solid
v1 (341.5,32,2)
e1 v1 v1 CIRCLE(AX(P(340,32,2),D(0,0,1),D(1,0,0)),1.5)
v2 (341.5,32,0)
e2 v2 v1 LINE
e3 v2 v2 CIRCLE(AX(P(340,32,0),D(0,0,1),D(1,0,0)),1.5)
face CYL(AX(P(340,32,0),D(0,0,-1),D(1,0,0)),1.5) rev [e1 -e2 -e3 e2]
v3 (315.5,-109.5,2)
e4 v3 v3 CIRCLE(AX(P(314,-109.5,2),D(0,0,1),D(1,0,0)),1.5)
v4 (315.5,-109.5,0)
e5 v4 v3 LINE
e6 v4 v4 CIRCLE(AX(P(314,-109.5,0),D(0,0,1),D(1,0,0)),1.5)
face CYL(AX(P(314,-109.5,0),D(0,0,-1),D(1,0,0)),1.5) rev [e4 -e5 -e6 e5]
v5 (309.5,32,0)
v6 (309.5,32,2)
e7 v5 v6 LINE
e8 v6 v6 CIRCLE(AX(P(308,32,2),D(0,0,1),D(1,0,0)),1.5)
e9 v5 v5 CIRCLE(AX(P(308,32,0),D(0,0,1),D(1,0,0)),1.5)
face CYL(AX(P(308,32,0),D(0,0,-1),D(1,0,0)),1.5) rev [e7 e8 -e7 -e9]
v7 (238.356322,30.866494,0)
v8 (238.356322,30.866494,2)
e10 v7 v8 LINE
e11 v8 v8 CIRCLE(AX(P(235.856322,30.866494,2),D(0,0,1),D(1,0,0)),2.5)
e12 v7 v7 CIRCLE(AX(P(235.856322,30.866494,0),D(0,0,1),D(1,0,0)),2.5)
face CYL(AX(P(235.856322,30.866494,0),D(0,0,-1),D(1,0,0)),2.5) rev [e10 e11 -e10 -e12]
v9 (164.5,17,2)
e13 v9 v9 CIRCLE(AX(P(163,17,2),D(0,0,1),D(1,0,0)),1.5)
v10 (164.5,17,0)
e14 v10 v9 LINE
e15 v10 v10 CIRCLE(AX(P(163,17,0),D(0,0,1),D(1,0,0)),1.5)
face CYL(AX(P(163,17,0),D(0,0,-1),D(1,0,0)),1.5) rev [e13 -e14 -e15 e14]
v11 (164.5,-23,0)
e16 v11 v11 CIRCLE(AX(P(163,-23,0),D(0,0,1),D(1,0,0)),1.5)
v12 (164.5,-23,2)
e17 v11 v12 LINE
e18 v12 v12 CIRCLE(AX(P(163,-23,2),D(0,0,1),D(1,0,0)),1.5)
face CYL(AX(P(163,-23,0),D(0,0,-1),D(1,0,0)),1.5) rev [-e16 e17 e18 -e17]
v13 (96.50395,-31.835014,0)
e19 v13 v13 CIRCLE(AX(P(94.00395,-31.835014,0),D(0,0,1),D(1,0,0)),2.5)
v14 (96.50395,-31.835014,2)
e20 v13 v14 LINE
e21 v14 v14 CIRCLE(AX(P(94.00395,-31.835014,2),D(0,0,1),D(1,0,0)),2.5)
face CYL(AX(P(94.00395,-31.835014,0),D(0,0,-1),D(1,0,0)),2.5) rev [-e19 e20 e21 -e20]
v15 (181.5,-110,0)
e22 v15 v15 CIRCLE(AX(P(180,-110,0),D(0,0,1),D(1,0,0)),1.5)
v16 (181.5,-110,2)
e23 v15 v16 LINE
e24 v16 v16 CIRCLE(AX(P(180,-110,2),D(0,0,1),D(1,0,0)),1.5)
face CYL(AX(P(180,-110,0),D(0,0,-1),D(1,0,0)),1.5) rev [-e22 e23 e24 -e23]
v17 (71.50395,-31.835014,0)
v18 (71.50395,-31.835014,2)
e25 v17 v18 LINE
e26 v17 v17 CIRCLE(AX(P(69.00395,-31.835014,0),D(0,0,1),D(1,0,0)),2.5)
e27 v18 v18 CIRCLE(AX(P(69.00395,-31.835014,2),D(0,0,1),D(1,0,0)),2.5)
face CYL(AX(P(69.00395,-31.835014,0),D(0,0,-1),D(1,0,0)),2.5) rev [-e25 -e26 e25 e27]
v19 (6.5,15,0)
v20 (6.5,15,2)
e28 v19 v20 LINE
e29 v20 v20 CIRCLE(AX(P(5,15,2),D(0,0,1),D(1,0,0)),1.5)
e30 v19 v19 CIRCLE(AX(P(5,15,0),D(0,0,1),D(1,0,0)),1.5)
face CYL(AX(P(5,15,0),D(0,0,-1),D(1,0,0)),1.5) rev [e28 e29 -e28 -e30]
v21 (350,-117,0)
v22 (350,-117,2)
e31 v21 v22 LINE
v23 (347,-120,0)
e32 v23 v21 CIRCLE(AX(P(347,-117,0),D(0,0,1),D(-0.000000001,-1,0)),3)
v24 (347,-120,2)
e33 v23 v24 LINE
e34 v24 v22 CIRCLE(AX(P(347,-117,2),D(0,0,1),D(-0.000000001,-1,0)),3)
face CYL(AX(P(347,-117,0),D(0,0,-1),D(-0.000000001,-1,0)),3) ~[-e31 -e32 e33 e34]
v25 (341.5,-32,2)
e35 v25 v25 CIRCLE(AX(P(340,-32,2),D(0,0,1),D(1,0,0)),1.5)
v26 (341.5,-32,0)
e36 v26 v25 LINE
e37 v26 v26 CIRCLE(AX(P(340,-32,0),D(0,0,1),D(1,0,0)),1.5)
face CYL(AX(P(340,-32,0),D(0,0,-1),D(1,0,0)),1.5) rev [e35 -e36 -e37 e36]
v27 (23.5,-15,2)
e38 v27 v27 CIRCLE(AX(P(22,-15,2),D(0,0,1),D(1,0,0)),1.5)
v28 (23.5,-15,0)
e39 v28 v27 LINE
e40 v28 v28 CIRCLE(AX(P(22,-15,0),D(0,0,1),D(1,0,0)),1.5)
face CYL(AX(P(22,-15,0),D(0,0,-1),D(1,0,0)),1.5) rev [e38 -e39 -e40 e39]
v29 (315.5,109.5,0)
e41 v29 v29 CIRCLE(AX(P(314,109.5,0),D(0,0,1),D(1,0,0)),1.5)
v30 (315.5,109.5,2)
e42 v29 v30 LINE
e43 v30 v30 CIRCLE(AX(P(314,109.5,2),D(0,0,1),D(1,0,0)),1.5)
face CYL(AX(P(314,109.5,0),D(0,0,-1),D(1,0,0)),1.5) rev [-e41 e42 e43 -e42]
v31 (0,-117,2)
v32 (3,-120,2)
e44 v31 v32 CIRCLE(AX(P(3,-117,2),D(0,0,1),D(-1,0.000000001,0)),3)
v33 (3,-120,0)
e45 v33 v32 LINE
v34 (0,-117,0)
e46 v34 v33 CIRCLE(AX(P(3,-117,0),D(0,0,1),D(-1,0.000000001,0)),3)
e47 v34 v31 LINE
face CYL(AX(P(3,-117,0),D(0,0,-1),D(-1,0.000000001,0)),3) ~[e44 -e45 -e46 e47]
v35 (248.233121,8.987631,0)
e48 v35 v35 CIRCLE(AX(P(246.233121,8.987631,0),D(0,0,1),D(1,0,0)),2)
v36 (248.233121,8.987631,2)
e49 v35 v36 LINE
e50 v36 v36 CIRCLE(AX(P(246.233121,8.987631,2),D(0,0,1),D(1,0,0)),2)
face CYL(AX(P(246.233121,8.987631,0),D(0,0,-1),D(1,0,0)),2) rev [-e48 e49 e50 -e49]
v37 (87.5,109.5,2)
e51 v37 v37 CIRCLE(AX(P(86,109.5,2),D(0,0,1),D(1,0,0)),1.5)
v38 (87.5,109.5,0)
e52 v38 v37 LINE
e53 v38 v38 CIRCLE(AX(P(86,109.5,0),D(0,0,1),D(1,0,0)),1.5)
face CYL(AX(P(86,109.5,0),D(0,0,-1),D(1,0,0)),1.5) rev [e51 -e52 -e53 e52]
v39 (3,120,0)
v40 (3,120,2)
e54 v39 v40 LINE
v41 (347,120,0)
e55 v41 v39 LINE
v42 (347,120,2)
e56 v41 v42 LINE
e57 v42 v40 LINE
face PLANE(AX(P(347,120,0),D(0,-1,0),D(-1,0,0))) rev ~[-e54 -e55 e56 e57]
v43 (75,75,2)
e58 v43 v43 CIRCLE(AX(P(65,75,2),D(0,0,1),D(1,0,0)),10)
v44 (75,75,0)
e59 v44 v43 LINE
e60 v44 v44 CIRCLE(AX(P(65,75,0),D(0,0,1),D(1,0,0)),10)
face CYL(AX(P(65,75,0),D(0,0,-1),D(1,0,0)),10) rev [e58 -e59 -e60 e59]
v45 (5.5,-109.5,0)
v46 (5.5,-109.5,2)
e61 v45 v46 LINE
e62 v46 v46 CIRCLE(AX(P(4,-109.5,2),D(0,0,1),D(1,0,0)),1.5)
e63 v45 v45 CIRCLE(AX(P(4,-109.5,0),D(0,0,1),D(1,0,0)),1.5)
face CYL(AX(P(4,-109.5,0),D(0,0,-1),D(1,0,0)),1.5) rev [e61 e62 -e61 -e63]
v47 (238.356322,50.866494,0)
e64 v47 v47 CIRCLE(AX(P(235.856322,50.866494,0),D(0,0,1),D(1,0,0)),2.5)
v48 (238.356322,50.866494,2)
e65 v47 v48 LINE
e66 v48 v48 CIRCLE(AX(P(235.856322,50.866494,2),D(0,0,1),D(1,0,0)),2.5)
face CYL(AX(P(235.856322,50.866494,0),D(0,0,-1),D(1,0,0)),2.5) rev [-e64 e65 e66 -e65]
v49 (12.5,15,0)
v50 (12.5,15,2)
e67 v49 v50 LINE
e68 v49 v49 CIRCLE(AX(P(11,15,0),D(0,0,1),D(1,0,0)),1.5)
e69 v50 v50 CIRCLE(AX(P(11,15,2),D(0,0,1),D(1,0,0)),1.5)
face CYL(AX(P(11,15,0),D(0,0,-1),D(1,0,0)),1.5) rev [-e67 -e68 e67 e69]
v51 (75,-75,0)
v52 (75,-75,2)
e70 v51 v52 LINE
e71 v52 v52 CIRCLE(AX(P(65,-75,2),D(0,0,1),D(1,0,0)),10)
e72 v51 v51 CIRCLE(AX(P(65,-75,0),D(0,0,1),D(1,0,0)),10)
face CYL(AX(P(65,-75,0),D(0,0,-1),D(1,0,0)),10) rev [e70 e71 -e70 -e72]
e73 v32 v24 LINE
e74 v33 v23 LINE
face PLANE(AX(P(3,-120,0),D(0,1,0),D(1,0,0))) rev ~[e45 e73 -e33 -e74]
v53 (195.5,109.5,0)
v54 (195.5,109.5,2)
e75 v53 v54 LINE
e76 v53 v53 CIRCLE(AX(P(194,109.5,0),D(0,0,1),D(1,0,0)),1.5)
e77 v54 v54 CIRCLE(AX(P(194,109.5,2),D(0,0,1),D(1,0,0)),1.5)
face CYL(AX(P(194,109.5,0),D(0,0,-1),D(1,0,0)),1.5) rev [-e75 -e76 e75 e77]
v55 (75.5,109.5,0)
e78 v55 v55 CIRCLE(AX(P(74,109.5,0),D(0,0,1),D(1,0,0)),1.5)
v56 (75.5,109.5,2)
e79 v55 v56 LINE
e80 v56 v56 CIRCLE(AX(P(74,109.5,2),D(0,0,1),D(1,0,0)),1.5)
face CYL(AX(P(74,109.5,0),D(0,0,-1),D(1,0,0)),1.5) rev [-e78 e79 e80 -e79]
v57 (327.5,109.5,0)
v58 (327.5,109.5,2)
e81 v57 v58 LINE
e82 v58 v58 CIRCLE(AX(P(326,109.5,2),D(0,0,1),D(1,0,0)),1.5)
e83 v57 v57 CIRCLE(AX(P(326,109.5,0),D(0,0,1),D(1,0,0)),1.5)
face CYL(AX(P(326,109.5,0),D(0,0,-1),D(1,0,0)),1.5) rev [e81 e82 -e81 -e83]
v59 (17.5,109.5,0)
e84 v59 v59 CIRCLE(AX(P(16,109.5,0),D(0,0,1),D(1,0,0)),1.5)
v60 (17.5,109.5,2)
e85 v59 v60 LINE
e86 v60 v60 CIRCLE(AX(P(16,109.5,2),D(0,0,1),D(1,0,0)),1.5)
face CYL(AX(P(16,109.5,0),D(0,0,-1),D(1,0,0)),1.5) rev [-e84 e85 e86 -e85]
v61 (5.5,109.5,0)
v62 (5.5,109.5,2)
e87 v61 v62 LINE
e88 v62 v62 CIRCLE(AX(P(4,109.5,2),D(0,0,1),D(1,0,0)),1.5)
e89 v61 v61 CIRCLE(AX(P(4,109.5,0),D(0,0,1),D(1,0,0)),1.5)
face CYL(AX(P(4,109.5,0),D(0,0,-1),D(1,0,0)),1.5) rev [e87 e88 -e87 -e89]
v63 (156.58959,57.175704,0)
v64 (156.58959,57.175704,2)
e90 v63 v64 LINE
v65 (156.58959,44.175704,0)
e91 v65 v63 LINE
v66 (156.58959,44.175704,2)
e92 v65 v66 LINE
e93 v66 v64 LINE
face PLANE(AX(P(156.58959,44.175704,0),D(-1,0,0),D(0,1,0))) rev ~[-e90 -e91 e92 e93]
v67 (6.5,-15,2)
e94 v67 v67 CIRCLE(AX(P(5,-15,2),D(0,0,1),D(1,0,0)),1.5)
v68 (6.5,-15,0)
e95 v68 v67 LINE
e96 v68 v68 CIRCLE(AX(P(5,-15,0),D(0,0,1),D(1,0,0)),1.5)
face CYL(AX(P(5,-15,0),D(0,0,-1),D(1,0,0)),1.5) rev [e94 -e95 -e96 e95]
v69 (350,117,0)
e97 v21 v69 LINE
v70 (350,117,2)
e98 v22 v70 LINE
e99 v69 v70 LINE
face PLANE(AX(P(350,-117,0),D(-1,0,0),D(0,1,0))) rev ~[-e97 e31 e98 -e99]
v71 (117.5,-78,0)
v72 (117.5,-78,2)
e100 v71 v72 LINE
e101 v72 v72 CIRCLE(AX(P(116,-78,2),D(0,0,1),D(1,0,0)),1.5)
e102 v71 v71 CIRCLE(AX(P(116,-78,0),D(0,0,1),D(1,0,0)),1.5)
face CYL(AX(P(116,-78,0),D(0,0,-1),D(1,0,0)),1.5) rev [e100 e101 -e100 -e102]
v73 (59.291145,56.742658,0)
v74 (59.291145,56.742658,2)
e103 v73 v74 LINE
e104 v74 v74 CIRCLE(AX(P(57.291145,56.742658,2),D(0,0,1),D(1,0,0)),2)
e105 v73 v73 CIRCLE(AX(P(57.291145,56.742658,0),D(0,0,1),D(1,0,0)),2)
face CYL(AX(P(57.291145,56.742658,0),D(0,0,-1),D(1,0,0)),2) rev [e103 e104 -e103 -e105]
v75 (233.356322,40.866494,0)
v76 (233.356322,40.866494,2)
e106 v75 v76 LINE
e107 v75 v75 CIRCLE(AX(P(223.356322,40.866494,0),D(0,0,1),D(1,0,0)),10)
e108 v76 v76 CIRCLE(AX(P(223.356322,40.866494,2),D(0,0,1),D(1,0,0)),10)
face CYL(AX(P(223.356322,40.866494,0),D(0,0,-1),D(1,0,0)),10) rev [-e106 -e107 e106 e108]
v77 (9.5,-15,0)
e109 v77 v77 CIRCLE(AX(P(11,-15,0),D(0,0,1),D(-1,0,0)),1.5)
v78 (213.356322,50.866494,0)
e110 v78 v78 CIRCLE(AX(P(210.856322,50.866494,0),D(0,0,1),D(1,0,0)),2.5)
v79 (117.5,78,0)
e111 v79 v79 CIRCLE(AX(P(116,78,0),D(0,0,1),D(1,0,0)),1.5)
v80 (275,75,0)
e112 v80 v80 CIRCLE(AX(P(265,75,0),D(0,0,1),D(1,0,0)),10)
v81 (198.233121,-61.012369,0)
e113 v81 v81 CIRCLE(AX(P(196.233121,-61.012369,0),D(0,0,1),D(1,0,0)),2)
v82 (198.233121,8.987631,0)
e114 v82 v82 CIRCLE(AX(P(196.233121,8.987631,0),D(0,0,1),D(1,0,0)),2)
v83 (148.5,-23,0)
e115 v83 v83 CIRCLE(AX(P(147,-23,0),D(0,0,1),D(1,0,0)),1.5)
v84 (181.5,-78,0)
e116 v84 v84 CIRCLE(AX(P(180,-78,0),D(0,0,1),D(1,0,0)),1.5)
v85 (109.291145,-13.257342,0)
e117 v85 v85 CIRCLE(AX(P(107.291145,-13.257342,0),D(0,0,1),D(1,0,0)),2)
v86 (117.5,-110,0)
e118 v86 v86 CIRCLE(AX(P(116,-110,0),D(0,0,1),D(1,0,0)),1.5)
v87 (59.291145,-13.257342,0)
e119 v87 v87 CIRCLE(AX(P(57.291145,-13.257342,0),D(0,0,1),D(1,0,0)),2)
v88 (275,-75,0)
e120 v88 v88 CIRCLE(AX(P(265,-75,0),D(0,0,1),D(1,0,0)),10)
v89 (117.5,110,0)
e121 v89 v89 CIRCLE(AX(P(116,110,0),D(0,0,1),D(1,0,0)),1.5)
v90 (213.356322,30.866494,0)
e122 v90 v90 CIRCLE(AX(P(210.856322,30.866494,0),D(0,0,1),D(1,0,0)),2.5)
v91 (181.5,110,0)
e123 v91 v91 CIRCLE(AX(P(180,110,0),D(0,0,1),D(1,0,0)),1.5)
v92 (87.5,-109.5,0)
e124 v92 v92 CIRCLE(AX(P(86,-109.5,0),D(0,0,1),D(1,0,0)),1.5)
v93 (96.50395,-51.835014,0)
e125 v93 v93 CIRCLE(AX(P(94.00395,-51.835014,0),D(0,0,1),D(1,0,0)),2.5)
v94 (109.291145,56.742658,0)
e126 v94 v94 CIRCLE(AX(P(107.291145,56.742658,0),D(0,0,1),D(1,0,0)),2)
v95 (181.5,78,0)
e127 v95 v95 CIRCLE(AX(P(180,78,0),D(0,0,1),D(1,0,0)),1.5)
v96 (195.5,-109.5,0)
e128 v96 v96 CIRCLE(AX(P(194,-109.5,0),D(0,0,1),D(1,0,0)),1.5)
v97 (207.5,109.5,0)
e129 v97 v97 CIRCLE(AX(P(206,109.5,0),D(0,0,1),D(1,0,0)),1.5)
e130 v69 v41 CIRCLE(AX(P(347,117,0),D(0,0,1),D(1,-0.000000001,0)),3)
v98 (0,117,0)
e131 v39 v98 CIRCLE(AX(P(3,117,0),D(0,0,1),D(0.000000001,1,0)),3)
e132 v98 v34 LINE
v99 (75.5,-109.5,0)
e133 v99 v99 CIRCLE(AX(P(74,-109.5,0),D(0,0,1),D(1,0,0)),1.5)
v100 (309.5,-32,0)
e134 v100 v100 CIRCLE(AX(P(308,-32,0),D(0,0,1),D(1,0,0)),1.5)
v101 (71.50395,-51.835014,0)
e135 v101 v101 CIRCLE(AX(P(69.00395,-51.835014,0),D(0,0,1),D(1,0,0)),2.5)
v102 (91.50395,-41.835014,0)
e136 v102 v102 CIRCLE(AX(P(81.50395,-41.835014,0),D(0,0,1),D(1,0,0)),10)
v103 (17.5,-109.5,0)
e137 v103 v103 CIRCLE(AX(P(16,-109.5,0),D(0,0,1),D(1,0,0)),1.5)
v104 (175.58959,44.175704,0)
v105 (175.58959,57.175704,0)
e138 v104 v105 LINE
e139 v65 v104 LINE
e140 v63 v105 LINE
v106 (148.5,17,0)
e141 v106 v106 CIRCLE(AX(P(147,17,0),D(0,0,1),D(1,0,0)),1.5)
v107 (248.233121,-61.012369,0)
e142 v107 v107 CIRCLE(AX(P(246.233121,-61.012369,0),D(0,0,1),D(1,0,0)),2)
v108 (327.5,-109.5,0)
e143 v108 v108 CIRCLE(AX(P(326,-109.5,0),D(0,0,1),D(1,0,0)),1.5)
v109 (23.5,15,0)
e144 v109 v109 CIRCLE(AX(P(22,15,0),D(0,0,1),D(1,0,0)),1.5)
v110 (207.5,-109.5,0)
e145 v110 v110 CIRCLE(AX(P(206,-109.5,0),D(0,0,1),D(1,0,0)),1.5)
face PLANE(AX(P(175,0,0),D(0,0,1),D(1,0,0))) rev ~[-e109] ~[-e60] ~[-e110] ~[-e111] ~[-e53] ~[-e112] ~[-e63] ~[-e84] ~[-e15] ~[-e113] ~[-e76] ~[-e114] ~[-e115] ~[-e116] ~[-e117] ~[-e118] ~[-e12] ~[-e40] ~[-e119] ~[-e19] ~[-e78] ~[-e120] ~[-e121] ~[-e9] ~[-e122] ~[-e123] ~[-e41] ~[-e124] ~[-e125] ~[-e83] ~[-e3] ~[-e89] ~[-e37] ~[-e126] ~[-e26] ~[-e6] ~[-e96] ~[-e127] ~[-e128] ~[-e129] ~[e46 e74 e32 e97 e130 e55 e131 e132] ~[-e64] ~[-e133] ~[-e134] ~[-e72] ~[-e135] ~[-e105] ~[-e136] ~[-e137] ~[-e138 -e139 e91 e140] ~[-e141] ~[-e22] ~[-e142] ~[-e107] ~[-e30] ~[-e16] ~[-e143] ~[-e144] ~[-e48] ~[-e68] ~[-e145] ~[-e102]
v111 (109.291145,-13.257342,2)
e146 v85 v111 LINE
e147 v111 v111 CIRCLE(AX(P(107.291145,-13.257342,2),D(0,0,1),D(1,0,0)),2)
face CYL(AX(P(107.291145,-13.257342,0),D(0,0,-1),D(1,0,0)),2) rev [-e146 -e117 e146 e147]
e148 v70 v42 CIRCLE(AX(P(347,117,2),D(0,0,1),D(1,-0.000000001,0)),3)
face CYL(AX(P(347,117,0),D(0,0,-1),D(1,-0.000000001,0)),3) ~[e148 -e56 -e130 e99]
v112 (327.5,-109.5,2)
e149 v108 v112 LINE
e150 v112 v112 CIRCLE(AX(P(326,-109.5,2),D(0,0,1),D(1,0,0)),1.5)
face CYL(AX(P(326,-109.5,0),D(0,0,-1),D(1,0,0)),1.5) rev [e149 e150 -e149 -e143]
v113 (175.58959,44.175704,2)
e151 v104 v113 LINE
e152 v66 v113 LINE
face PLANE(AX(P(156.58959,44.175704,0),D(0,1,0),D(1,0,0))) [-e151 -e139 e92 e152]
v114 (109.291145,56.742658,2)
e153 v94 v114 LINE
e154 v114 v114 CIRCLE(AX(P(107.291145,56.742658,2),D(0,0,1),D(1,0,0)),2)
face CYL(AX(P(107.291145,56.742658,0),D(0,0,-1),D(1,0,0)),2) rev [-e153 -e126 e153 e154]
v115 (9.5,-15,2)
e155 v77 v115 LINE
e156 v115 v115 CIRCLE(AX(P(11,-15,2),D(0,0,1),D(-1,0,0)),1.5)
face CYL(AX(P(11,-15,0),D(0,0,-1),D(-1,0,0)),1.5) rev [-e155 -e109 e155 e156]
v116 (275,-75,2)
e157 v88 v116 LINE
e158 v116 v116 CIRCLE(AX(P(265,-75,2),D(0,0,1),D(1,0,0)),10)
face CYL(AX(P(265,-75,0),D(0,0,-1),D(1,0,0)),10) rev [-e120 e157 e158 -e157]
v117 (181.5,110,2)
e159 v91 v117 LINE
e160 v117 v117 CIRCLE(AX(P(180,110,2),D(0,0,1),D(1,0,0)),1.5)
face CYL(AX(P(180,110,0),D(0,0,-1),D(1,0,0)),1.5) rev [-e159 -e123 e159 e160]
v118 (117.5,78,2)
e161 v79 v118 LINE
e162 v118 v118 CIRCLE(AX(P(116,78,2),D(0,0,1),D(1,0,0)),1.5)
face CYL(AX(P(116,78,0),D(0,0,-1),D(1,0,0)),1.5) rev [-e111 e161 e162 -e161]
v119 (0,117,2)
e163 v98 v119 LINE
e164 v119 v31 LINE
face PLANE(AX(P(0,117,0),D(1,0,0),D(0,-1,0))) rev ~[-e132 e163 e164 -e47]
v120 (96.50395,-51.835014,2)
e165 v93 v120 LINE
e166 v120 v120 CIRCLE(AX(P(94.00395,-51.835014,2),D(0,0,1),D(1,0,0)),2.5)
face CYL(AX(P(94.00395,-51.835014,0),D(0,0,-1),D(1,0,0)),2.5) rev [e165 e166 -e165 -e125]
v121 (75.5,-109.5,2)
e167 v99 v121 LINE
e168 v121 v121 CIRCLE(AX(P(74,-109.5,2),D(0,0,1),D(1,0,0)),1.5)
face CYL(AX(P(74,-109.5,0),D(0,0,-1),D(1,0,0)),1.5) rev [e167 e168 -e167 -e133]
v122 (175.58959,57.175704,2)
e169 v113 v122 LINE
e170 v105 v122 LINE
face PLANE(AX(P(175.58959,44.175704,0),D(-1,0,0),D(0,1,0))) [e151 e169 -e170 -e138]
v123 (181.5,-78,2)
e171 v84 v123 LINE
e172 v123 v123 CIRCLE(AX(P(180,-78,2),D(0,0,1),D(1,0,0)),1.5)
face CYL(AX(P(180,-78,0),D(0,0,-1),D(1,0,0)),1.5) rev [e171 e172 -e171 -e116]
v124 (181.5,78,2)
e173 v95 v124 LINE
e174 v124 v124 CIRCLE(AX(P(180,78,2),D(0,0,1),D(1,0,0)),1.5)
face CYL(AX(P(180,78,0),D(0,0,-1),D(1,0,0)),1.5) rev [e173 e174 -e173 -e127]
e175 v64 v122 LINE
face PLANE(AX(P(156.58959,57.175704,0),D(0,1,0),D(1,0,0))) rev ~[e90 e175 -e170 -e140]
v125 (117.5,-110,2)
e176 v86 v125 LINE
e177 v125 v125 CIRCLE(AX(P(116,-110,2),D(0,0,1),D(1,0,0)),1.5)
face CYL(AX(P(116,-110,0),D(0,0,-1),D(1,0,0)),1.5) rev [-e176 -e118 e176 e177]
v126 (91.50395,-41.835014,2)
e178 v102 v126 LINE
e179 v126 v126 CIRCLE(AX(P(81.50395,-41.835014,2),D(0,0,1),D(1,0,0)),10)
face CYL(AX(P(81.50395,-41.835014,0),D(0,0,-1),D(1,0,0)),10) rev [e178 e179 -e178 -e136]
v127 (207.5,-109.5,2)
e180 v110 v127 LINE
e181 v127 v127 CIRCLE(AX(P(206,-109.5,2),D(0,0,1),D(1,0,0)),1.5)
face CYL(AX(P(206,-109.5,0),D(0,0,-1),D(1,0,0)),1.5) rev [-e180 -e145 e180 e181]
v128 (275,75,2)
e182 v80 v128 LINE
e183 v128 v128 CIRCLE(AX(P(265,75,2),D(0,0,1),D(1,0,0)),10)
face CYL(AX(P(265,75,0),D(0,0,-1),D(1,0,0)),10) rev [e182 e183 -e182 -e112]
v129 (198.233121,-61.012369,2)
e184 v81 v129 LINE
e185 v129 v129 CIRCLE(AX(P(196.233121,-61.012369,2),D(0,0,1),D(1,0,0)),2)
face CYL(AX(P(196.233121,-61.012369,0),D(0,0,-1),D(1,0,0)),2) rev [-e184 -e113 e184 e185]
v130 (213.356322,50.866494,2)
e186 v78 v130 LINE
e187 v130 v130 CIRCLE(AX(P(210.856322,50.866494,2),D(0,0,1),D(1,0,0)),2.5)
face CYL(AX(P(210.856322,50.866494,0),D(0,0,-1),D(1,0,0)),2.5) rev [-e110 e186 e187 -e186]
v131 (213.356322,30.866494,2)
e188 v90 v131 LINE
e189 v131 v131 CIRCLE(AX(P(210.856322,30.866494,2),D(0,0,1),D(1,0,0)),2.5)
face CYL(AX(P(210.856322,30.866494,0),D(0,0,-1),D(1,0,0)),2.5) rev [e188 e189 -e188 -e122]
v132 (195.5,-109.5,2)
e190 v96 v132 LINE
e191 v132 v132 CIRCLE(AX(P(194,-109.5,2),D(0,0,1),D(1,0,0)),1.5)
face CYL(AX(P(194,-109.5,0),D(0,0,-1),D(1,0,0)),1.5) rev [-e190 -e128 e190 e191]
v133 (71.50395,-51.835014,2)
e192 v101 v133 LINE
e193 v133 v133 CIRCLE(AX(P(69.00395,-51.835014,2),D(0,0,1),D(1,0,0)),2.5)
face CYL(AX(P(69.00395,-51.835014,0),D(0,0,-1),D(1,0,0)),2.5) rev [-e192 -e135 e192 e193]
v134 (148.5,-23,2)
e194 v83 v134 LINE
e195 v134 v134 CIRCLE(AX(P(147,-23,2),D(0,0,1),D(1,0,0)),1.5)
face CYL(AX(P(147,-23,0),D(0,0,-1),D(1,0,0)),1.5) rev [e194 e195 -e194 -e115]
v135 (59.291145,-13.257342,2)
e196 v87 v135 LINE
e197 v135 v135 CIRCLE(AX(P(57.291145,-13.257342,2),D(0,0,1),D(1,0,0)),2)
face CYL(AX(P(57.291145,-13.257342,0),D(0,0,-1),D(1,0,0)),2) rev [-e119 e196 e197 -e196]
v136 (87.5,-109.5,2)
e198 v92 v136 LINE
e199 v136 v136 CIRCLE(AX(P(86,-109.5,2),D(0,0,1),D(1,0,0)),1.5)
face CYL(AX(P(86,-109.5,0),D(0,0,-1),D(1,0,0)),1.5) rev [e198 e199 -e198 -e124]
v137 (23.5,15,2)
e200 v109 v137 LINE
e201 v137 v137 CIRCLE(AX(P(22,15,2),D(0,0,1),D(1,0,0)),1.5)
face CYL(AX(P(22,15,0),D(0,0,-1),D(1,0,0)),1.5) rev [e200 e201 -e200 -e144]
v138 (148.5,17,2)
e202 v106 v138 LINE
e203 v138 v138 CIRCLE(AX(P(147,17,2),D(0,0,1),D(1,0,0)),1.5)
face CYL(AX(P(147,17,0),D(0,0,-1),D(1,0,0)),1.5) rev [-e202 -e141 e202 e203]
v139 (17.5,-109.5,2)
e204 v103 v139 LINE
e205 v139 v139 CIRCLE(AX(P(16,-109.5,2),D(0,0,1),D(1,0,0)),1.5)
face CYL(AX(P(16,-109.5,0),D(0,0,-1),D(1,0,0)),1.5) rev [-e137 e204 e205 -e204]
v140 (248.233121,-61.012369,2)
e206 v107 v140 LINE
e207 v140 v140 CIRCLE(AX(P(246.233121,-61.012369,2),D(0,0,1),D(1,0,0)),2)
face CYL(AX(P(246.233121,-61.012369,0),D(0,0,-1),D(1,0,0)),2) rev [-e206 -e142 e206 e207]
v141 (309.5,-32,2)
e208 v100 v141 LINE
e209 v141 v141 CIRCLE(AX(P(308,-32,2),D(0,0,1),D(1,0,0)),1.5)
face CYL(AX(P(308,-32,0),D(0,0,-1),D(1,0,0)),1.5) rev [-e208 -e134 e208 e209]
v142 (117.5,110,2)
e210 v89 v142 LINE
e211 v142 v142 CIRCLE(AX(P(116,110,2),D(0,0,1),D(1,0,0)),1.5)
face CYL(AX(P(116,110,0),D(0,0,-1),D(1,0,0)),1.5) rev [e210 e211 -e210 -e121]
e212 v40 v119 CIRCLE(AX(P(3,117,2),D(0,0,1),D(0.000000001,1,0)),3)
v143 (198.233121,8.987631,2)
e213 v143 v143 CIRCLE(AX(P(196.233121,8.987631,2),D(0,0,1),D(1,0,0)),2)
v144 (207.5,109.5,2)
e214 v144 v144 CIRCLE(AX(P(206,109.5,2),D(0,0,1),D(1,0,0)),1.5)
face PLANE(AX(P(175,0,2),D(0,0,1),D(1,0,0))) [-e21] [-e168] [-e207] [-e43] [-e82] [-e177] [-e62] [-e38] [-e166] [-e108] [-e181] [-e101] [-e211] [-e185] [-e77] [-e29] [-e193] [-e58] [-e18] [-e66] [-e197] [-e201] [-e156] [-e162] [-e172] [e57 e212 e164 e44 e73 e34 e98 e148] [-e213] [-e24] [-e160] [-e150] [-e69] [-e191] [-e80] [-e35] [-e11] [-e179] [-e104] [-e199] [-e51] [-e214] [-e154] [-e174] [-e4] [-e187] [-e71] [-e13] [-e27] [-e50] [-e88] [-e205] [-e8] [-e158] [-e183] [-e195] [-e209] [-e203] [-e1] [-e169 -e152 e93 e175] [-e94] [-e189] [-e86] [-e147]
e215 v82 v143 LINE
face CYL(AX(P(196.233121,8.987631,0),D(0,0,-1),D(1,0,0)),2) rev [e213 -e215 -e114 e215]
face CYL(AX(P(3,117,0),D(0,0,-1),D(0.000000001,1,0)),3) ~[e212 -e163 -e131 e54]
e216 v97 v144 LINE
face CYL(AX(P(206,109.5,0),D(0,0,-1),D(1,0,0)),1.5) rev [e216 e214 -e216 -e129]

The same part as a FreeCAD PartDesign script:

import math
import FreeCAD as App
import Part
import Sketcher
Q = App.Units.Quantity


def add_polygon(sketch, points):
    """Adds a closed chain of lines whose ends are joined by coincident constraints."""
    first, n = sketch.GeometryCount, len(points)
    for a, b in zip(points, points[1:] + points[:1]):
        sketch.addGeometry(Part.LineSegment(App.Vector(*a, 0), App.Vector(*b, 0)), False)
    for i in range(n):
        sketch.addConstraint(Sketcher.Constraint("Coincident", first + i, 2, first + (i + 1) % n, 1))

doc = App.newDocument("Part")
params = doc.addObject("Spreadsheet::Sheet", "Params")
for row, (alias, value) in enumerate([
    ("sketch1_diameter", "3 mm"),
    ("sketch1_diameter2", "20 mm"),
    ("sketch1_diameter3", "5 mm"),
    ("sketch1_diameter4", "4 mm"),
    ("sketch1_radius", "3 mm"),
    ("pad1_length", "2 mm"),
], start=1):
    params.set(f"A{row}", alias)
    params.set(f"B{row}", "=" + value)
    params.setAlias(f"B{row}", alias)

body = doc.addObject("PartDesign::Body", "Body")

sketch1 = body.newObject("Sketcher::SketchObject", "Sketch")
sketch1.AttachmentSupport = (doc.getObject("XY_Plane"), [""])
sketch1.MapMode = "FlatFace"
sketch1.addGeometry(Part.LineSegment(App.Vector(347, 120, 0), App.Vector(3, 120, 0)), False)
sketch1.addGeometry(Part.ArcOfCircle(Part.Circle(App.Vector(3, 117, 0), App.Vector(0, 0, 1), 3), math.radians(90), math.radians(180)), False)
sketch1.addGeometry(Part.LineSegment(App.Vector(0, 117, 0), App.Vector(0, -117, 0)), False)
sketch1.addGeometry(Part.ArcOfCircle(Part.Circle(App.Vector(3, -117, 0), App.Vector(0, 0, 1), 3), math.radians(180), math.radians(270)), False)
sketch1.addGeometry(Part.LineSegment(App.Vector(3, -120, 0), App.Vector(347, -120, 0)), False)
sketch1.addGeometry(Part.ArcOfCircle(Part.Circle(App.Vector(347, -117, 0), App.Vector(0, 0, 1), 3), math.radians(-90), math.radians(0)), False)
sketch1.addGeometry(Part.LineSegment(App.Vector(350, -117, 0), App.Vector(350, 117, 0)), False)
sketch1.addGeometry(Part.ArcOfCircle(Part.Circle(App.Vector(347, 117, 0), App.Vector(0, 0, 1), 3), math.radians(0), math.radians(90)), False)
sketch1.addGeometry(Part.Circle(App.Vector(4, -109.5, 0), App.Vector(0, 0, 1), 1.5), False)
sketch1.addGeometry(Part.Circle(App.Vector(16, -109.5, 0), App.Vector(0, 0, 1), 1.5), False)
sketch1.addGeometry(Part.Circle(App.Vector(74, -109.5, 0), App.Vector(0, 0, 1), 1.5), False)
sketch1.addGeometry(Part.Circle(App.Vector(86, -109.5, 0), App.Vector(0, 0, 1), 1.5), False)
sketch1.addGeometry(Part.Circle(App.Vector(65, -75, 0), App.Vector(0, 0, 1), 10), False)
sketch1.addGeometry(Part.Circle(App.Vector(116, -110, 0), App.Vector(0, 0, 1), 1.5), False)
sketch1.addGeometry(Part.Circle(App.Vector(116, -78, 0), App.Vector(0, 0, 1), 1.5), False)
sketch1.addGeometry(Part.Circle(App.Vector(69, -51.8, 0), App.Vector(0, 0, 1), 2.5), False)
sketch1.addGeometry(Part.Circle(App.Vector(81.5, -41.8, 0), App.Vector(0, 0, 1), 10), False)
sketch1.addGeometry(Part.Circle(App.Vector(69, -31.8, 0), App.Vector(0, 0, 1), 2.5), False)
sketch1.addGeometry(Part.Circle(App.Vector(5, -15, 0), App.Vector(0, 0, 1), 1.5), False)
sketch1.addGeometry(Part.Circle(App.Vector(11, -15, 0), App.Vector(0, 0, 1), 1.5), False)
sketch1.addGeometry(Part.Circle(App.Vector(22, -15, 0), App.Vector(0, 0, 1), 1.5), False)
sketch1.addGeometry(Part.Circle(App.Vector(57.3, -13.3, 0), App.Vector(0, 0, 1), 2), False)
sketch1.addGeometry(Part.Circle(App.Vector(94, -51.8, 0), App.Vector(0, 0, 1), 2.5), False)
sketch1.addGeometry(Part.Circle(App.Vector(94, -31.8, 0), App.Vector(0, 0, 1), 2.5), False)
sketch1.addGeometry(Part.Circle(App.Vector(107.3, -13.3, 0), App.Vector(0, 0, 1), 2), False)
sketch1.addGeometry(Part.Circle(App.Vector(147, -23, 0), App.Vector(0, 0, 1), 1.5), False)
sketch1.addGeometry(Part.Circle(App.Vector(163, -23, 0), App.Vector(0, 0, 1), 1.5), False)
sketch1.addGeometry(Part.Circle(App.Vector(180, -110, 0), App.Vector(0, 0, 1), 1.5), False)
sketch1.addGeometry(Part.Circle(App.Vector(194, -109.5, 0), App.Vector(0, 0, 1), 1.5), False)
sketch1.addGeometry(Part.Circle(App.Vector(206, -109.5, 0), App.Vector(0, 0, 1), 1.5), False)
sketch1.addGeometry(Part.Circle(App.Vector(180, -78, 0), App.Vector(0, 0, 1), 1.5), False)
sketch1.addGeometry(Part.Circle(App.Vector(196.2, -61, 0), App.Vector(0, 0, 1), 2), False)
sketch1.addGeometry(Part.Circle(App.Vector(246.2, -61, 0), App.Vector(0, 0, 1), 2), False)
sketch1.addGeometry(Part.Circle(App.Vector(314, -109.5, 0), App.Vector(0, 0, 1), 1.5), False)
sketch1.addGeometry(Part.Circle(App.Vector(326, -109.5, 0), App.Vector(0, 0, 1), 1.5), False)
sketch1.addGeometry(Part.Circle(App.Vector(265, -75, 0), App.Vector(0, 0, 1), 10), False)
sketch1.addGeometry(Part.Circle(App.Vector(308, -32, 0), App.Vector(0, 0, 1), 1.5), False)
sketch1.addGeometry(Part.Circle(App.Vector(340, -32, 0), App.Vector(0, 0, 1), 1.5), False)
sketch1.addGeometry(Part.Circle(App.Vector(5, 15, 0), App.Vector(0, 0, 1), 1.5), False)
sketch1.addGeometry(Part.Circle(App.Vector(11, 15, 0), App.Vector(0, 0, 1), 1.5), False)
sketch1.addGeometry(Part.Circle(App.Vector(22, 15, 0), App.Vector(0, 0, 1), 1.5), False)
sketch1.addGeometry(Part.Circle(App.Vector(147, 17, 0), App.Vector(0, 0, 1), 1.5), False)
sketch1.addGeometry(Part.Circle(App.Vector(163, 17, 0), App.Vector(0, 0, 1), 1.5), False)
add_polygon(sketch1, [(175.6, 44.2), (156.6, 44.2), (156.6, 57.2), (175.6, 57.2)])
sketch1.addGeometry(Part.Circle(App.Vector(57.3, 56.7, 0), App.Vector(0, 0, 1), 2), False)
sketch1.addGeometry(Part.Circle(App.Vector(65, 75, 0), App.Vector(0, 0, 1), 10), False)
sketch1.addGeometry(Part.Circle(App.Vector(4, 109.5, 0), App.Vector(0, 0, 1), 1.5), False)
sketch1.addGeometry(Part.Circle(App.Vector(16, 109.5, 0), App.Vector(0, 0, 1), 1.5), False)
sketch1.addGeometry(Part.Circle(App.Vector(74, 109.5, 0), App.Vector(0, 0, 1), 1.5), False)
sketch1.addGeometry(Part.Circle(App.Vector(86, 109.5, 0), App.Vector(0, 0, 1), 1.5), False)
sketch1.addGeometry(Part.Circle(App.Vector(107.3, 56.7, 0), App.Vector(0, 0, 1), 2), False)
sketch1.addGeometry(Part.Circle(App.Vector(116, 78, 0), App.Vector(0, 0, 1), 1.5), False)
sketch1.addGeometry(Part.Circle(App.Vector(116, 110, 0), App.Vector(0, 0, 1), 1.5), False)
sketch1.addGeometry(Part.Circle(App.Vector(196.2, 9, 0), App.Vector(0, 0, 1), 2), False)
sketch1.addGeometry(Part.Circle(App.Vector(246.2, 9, 0), App.Vector(0, 0, 1), 2), False)
sketch1.addGeometry(Part.Circle(App.Vector(210.9, 30.9, 0), App.Vector(0, 0, 1), 2.5), False)
sketch1.addGeometry(Part.Circle(App.Vector(210.9, 50.9, 0), App.Vector(0, 0, 1), 2.5), False)
sketch1.addGeometry(Part.Circle(App.Vector(223.4, 40.9, 0), App.Vector(0, 0, 1), 10), False)
sketch1.addGeometry(Part.Circle(App.Vector(235.9, 30.9, 0), App.Vector(0, 0, 1), 2.5), False)
sketch1.addGeometry(Part.Circle(App.Vector(235.9, 50.9, 0), App.Vector(0, 0, 1), 2.5), False)
sketch1.addGeometry(Part.Circle(App.Vector(308, 32, 0), App.Vector(0, 0, 1), 1.5), False)
sketch1.addGeometry(Part.Circle(App.Vector(340, 32, 0), App.Vector(0, 0, 1), 1.5), False)
sketch1.addGeometry(Part.Circle(App.Vector(180, 78, 0), App.Vector(0, 0, 1), 1.5), False)
sketch1.addGeometry(Part.Circle(App.Vector(180, 110, 0), App.Vector(0, 0, 1), 1.5), False)
sketch1.addGeometry(Part.Circle(App.Vector(194, 109.5, 0), App.Vector(0, 0, 1), 1.5), False)
sketch1.addGeometry(Part.Circle(App.Vector(206, 109.5, 0), App.Vector(0, 0, 1), 1.5), False)
sketch1.addGeometry(Part.Circle(App.Vector(265, 75, 0), App.Vector(0, 0, 1), 10), False)
sketch1.addGeometry(Part.Circle(App.Vector(314, 109.5, 0), App.Vector(0, 0, 1), 1.5), False)
sketch1.addGeometry(Part.Circle(App.Vector(326, 109.5, 0), App.Vector(0, 0, 1), 1.5), False)
sketch1.addConstraint(Sketcher.Constraint("Tangent", 0, 2, 1, 1))
sketch1.addConstraint(Sketcher.Constraint("Tangent", 1, 2, 2, 1))
sketch1.addConstraint(Sketcher.Constraint("Tangent", 2, 2, 3, 1))
sketch1.addConstraint(Sketcher.Constraint("Tangent", 3, 2, 4, 1))
sketch1.addConstraint(Sketcher.Constraint("Tangent", 4, 2, 5, 1))
sketch1.addConstraint(Sketcher.Constraint("Tangent", 5, 2, 6, 1))
sketch1.addConstraint(Sketcher.Constraint("Tangent", 6, 2, 7, 1))
sketch1.addConstraint(Sketcher.Constraint("Tangent", 7, 2, 0, 1))
sketch1.addConstraint(Sketcher.Constraint("Horizontal", 0))
sketch1.addConstraint(Sketcher.Constraint("Vertical", 2))
sketch1.addConstraint(Sketcher.Constraint("Horizontal", 4))
sketch1.addConstraint(Sketcher.Constraint("Vertical", 6))
sketch1.addConstraint(Sketcher.Constraint("Horizontal", 43))
sketch1.addConstraint(Sketcher.Constraint("Vertical", 44))
sketch1.addConstraint(Sketcher.Constraint("Horizontal", 45))
sketch1.addConstraint(Sketcher.Constraint("Vertical", 46))
sketch1.addConstraint(Sketcher.Constraint("Equal", 1, 3))
sketch1.addConstraint(Sketcher.Constraint("Equal", 3, 5))
sketch1.addConstraint(Sketcher.Constraint("Equal", 5, 7))
sketch1.addConstraint(Sketcher.Constraint("Equal", 8, 9))
sketch1.addConstraint(Sketcher.Constraint("Equal", 9, 10))
sketch1.addConstraint(Sketcher.Constraint("Equal", 10, 11))
sketch1.addConstraint(Sketcher.Constraint("Equal", 11, 13))
sketch1.addConstraint(Sketcher.Constraint("Equal", 13, 14))
sketch1.addConstraint(Sketcher.Constraint("Equal", 12, 16))
sketch1.addConstraint(Sketcher.Constraint("Equal", 15, 17))
sketch1.addConstraint(Sketcher.Constraint("Equal", 14, 18))
sketch1.addConstraint(Sketcher.Constraint("Equal", 18, 19))
sketch1.addConstraint(Sketcher.Constraint("Equal", 19, 20))
sketch1.addConstraint(Sketcher.Constraint("Equal", 17, 22))
sketch1.addConstraint(Sketcher.Constraint("Equal", 22, 23))
sketch1.addConstraint(Sketcher.Constraint("Equal", 21, 24))
sketch1.addConstraint(Sketcher.Constraint("Equal", 20, 25))
sketch1.addConstraint(Sketcher.Constraint("Equal", 25, 26))
sketch1.addConstraint(Sketcher.Constraint("Equal", 26, 27))
sketch1.addConstraint(Sketcher.Constraint("Equal", 27, 28))
sketch1.addConstraint(Sketcher.Constraint("Equal", 28, 29))
sketch1.addConstraint(Sketcher.Constraint("Equal", 29, 30))
sketch1.addConstraint(Sketcher.Constraint("Equal", 24, 31))
sketch1.addConstraint(Sketcher.Constraint("Equal", 31, 32))
sketch1.addConstraint(Sketcher.Constraint("Equal", 30, 33))
sketch1.addConstraint(Sketcher.Constraint("Equal", 33, 34))
sketch1.addConstraint(Sketcher.Constraint("Equal", 16, 35))
sketch1.addConstraint(Sketcher.Constraint("Equal", 34, 36))
sketch1.addConstraint(Sketcher.Constraint("Equal", 36, 37))
sketch1.addConstraint(Sketcher.Constraint("Equal", 37, 38))
sketch1.addConstraint(Sketcher.Constraint("Equal", 38, 39))
sketch1.addConstraint(Sketcher.Constraint("Equal", 39, 40))
sketch1.addConstraint(Sketcher.Constraint("Equal", 40, 41))
sketch1.addConstraint(Sketcher.Constraint("Equal", 41, 42))
sketch1.addConstraint(Sketcher.Constraint("Equal", 32, 47))
sketch1.addConstraint(Sketcher.Constraint("Equal", 35, 48))
sketch1.addConstraint(Sketcher.Constraint("Equal", 42, 49))
sketch1.addConstraint(Sketcher.Constraint("Equal", 49, 50))
sketch1.addConstraint(Sketcher.Constraint("Equal", 50, 51))
sketch1.addConstraint(Sketcher.Constraint("Equal", 51, 52))
sketch1.addConstraint(Sketcher.Constraint("Equal", 47, 53))
sketch1.addConstraint(Sketcher.Constraint("Equal", 52, 54))
sketch1.addConstraint(Sketcher.Constraint("Equal", 54, 55))
sketch1.addConstraint(Sketcher.Constraint("Equal", 53, 56))
sketch1.addConstraint(Sketcher.Constraint("Equal", 56, 57))
sketch1.addConstraint(Sketcher.Constraint("Equal", 23, 58))
sketch1.addConstraint(Sketcher.Constraint("Equal", 58, 59))
sketch1.addConstraint(Sketcher.Constraint("Equal", 48, 60))
sketch1.addConstraint(Sketcher.Constraint("Equal", 59, 61))
sketch1.addConstraint(Sketcher.Constraint("Equal", 61, 62))
sketch1.addConstraint(Sketcher.Constraint("Equal", 55, 63))
sketch1.addConstraint(Sketcher.Constraint("Equal", 63, 64))
sketch1.addConstraint(Sketcher.Constraint("Equal", 64, 65))
sketch1.addConstraint(Sketcher.Constraint("Equal", 65, 66))
sketch1.addConstraint(Sketcher.Constraint("Equal", 66, 67))
sketch1.addConstraint(Sketcher.Constraint("Equal", 67, 68))
sketch1.addConstraint(Sketcher.Constraint("Equal", 60, 69))
sketch1.addConstraint(Sketcher.Constraint("Equal", 68, 70))
sketch1.addConstraint(Sketcher.Constraint("Equal", 70, 71))
sketch1.addConstraint(Sketcher.Constraint("Symmetric", 1, 2, 2, 2, -1, 1))
sketch1.addConstraint(Sketcher.Constraint("Symmetric", 18, 3, 38, 3, -1))
sketch1.addConstraint(Sketcher.Constraint("Symmetric", 19, 3, 39, 3, -1))
sketch1.addConstraint(Sketcher.Constraint("Symmetric", 20, 3, 40, 3, -1))
sketch1.addConstraint(Sketcher.Constraint("Symmetric", 12, 3, 48, 3, -1))
sketch1.addConstraint(Sketcher.Constraint("Symmetric", 8, 3, 49, 3, -1))
sketch1.addConstraint(Sketcher.Constraint("Symmetric", 9, 3, 50, 3, -1))
sketch1.addConstraint(Sketcher.Constraint("Symmetric", 10, 3, 51, 3, -1))
sketch1.addConstraint(Sketcher.Constraint("Symmetric", 11, 3, 52, 3, -1))
sketch1.addConstraint(Sketcher.Constraint("Symmetric", 14, 3, 54, 3, -1))
sketch1.addConstraint(Sketcher.Constraint("Symmetric", 13, 3, 55, 3, -1))
sketch1.addConstraint(Sketcher.Constraint("Symmetric", 36, 3, 63, 3, -1))
sketch1.addConstraint(Sketcher.Constraint("Symmetric", 37, 3, 64, 3, -1))
sketch1.addConstraint(Sketcher.Constraint("Symmetric", 30, 3, 65, 3, -1))
sketch1.addConstraint(Sketcher.Constraint("Symmetric", 27, 3, 66, 3, -1))
sketch1.addConstraint(Sketcher.Constraint("Symmetric", 28, 3, 67, 3, -1))
sketch1.addConstraint(Sketcher.Constraint("Symmetric", 29, 3, 68, 3, -1))
sketch1.addConstraint(Sketcher.Constraint("Symmetric", 35, 3, 69, 3, -1))
sketch1.addConstraint(Sketcher.Constraint("Symmetric", 33, 3, 70, 3, -1))
sketch1.addConstraint(Sketcher.Constraint("Symmetric", 34, 3, 71, 3, -1))
sketch1.addConstraint(Sketcher.Constraint("Horizontal", 8, 3, 9, 3))
sketch1.addConstraint(Sketcher.Constraint("Horizontal", 9, 3, 10, 3))
sketch1.addConstraint(Sketcher.Constraint("Horizontal", 10, 3, 11, 3))
sketch1.addConstraint(Sketcher.Constraint("Horizontal", 18, 3, 19, 3))
sketch1.addConstraint(Sketcher.Constraint("Horizontal", 19, 3, 20, 3))
sketch1.addConstraint(Sketcher.Constraint("Horizontal", 15, 3, 22, 3))
sketch1.addConstraint(Sketcher.Constraint("Horizontal", 17, 3, 23, 3))
sketch1.addConstraint(Sketcher.Constraint("Horizontal", 21, 3, 24, 3))
sketch1.addConstraint(Sketcher.Constraint("Horizontal", 25, 3, 26, 3))
sketch1.addConstraint(Sketcher.Constraint("Horizontal", 13, 3, 27, 3))
sketch1.addConstraint(Sketcher.Constraint("Horizontal", 11, 3, 28, 3))
sketch1.addConstraint(Sketcher.Constraint("Horizontal", 28, 3, 29, 3))
sketch1.addConstraint(Sketcher.Constraint("Horizontal", 14, 3, 30, 3))
sketch1.addConstraint(Sketcher.Constraint("Horizontal", 31, 3, 32, 3))
sketch1.addConstraint(Sketcher.Constraint("Horizontal", 29, 3, 33, 3))
sketch1.addConstraint(Sketcher.Constraint("Horizontal", 33, 3, 34, 3))
sketch1.addConstraint(Sketcher.Constraint("Horizontal", 12, 3, 35, 3))
sketch1.addConstraint(Sketcher.Constraint("Horizontal", 36, 3, 37, 3))
sketch1.addConstraint(Sketcher.Constraint("Horizontal", 41, 3, 42, 3))
sketch1.addConstraint(Sketcher.Constraint("Horizontal", 47, 3, 53, 3))
sketch1.addConstraint(Sketcher.Constraint("Horizontal", 56, 3, 57, 3))
sketch1.addConstraint(Sketcher.Constraint("Horizontal", 58, 3, 61, 3))
sketch1.addConstraint(Sketcher.Constraint("Horizontal", 59, 3, 62, 3))
sketch1.addConstraint(Sketcher.Constraint("Vertical", 13, 3, 14, 3))
sketch1.addConstraint(Sketcher.Constraint("Vertical", 15, 3, 17, 3))
sketch1.addConstraint(Sketcher.Constraint("Vertical", 22, 3, 23, 3))
sketch1.addConstraint(Sketcher.Constraint("Vertical", 27, 3, 30, 3))
sketch1.addConstraint(Sketcher.Constraint("Vertical", 25, 3, 41, 3))
sketch1.addConstraint(Sketcher.Constraint("Vertical", 26, 3, 42, 3))
sketch1.addConstraint(Sketcher.Constraint("Vertical", 21, 3, 47, 3))
sketch1.addConstraint(Sketcher.Constraint("Vertical", 24, 3, 53, 3))
sketch1.addConstraint(Sketcher.Constraint("Vertical", 31, 3, 56, 3))
sketch1.addConstraint(Sketcher.Constraint("Vertical", 32, 3, 57, 3))
sketch1.addConstraint(Sketcher.Constraint("Vertical", 58, 3, 59, 3))
sketch1.addConstraint(Sketcher.Constraint("Vertical", 61, 3, 62, 3))
sketch1.addConstraint(Sketcher.Constraint("Diameter", 8, Q("3 mm")))
sketch1.addConstraint(Sketcher.Constraint("Diameter", 12, Q("20 mm")))
sketch1.addConstraint(Sketcher.Constraint("Diameter", 15, Q("5 mm")))
sketch1.addConstraint(Sketcher.Constraint("Diameter", 21, Q("4 mm")))
sketch1.addConstraint(Sketcher.Constraint("Radius", 1, Q("3 mm")))
sketch1.addConstraint(Sketcher.Constraint("DistanceX", 0, 2, 0, 1, Q("344 mm")))
sketch1.addConstraint(Sketcher.Constraint("DistanceX", 43, 2, 43, 1, Q("19 mm")))
sketch1.addConstraint(Sketcher.Constraint("DistanceY", 2, 2, 2, 1, Q("234 mm")))
sketch1.addConstraint(Sketcher.Constraint("DistanceY", 44, 1, 44, 2, Q("13 mm")))
sketch1.addConstraint(Sketcher.Constraint("DistanceX", -1, 1, 8, 3, Q("4 mm")))
sketch1.addConstraint(Sketcher.Constraint("DistanceX", -1, 1, 9, 3, Q("16 mm")))
sketch1.addConstraint(Sketcher.Constraint("DistanceX", -1, 1, 10, 3, Q("74 mm")))
sketch1.addConstraint(Sketcher.Constraint("DistanceX", -1, 1, 11, 3, Q("86 mm")))
sketch1.addConstraint(Sketcher.Constraint("DistanceX", -1, 1, 12, 3, Q("65 mm")))
sketch1.addConstraint(Sketcher.Constraint("DistanceY", 12, 3, -1, 1, Q("75 mm")))
sketch1.addConstraint(Sketcher.Constraint("DistanceX", -1, 1, 13, 3, Q("116 mm")))
sketch1.addConstraint(Sketcher.Constraint("DistanceY", 13, 3, -1, 1, Q("110 mm")))
sketch1.addConstraint(Sketcher.Constraint("DistanceY", 14, 3, -1, 1, Q("78 mm")))
sketch1.addConstraint(Sketcher.Constraint("DistanceX", -1, 1, 18, 3, Q("5 mm")))
sketch1.addConstraint(Sketcher.Constraint("DistanceY", 18, 3, -1, 1, Q("15 mm")))
sketch1.addConstraint(Sketcher.Constraint("DistanceX", -1, 1, 19, 3, Q("11 mm")))
sketch1.addConstraint(Sketcher.Constraint("DistanceX", -1, 1, 20, 3, Q("22 mm")))
sketch1.addConstraint(Sketcher.Constraint("DistanceX", -1, 1, 25, 3, Q("147 mm")))
sketch1.addConstraint(Sketcher.Constraint("DistanceY", 25, 3, -1, 1, Q("23 mm")))
sketch1.addConstraint(Sketcher.Constraint("DistanceX", -1, 1, 26, 3, Q("163 mm")))
sketch1.addConstraint(Sketcher.Constraint("DistanceX", -1, 1, 27, 3, Q("180 mm")))
sketch1.addConstraint(Sketcher.Constraint("DistanceX", -1, 1, 28, 3, Q("194 mm")))
sketch1.addConstraint(Sketcher.Constraint("DistanceX", -1, 1, 29, 3, Q("206 mm")))
sketch1.addConstraint(Sketcher.Constraint("DistanceX", -1, 1, 33, 3, Q("314 mm")))
sketch1.addConstraint(Sketcher.Constraint("DistanceX", -1, 1, 34, 3, Q("326 mm")))
sketch1.addConstraint(Sketcher.Constraint("DistanceX", -1, 1, 35, 3, Q("265 mm")))
sketch1.addConstraint(Sketcher.Constraint("DistanceX", -1, 1, 36, 3, Q("308 mm")))
sketch1.addConstraint(Sketcher.Constraint("DistanceY", 36, 3, -1, 1, Q("32 mm")))
sketch1.addConstraint(Sketcher.Constraint("DistanceX", -1, 1, 37, 3, Q("340 mm")))
sketch1.addConstraint(Sketcher.Constraint("DistanceY", -1, 1, 41, 3, Q("17 mm")))
sketch1.addConstraint(Sketcher.Constraint("DistanceY", 8, 3, -1, 1, Q("109.5 mm")))
sketch1.addConstraint(Sketcher.Constraint("DistanceX", -1, 1, 15, 3, Q("69.00395 mm")))
sketch1.addConstraint(Sketcher.Constraint("DistanceX", -1, 1, 16, 3, Q("81.50395 mm")))
sketch1.addConstraint(Sketcher.Constraint("DistanceX", -1, 1, 22, 3, Q("94.00395 mm")))
sketch1.addConstraint(Sketcher.Constraint("DistanceX", -1, 1, 31, 3, Q("196.233121 mm")))
sketch1.addConstraint(Sketcher.Constraint("DistanceY", 31, 3, -1, 1, Q("61.012369 mm")))
sketch1.addConstraint(Sketcher.Constraint("DistanceX", -1, 1, 32, 3, Q("246.233121 mm")))
sketch1.addConstraint(Sketcher.Constraint("DistanceY", -1, 1, 56, 3, Q("8.987631 mm")))
sketch1.addConstraint(Sketcher.Constraint("DistanceX", -1, 1, 58, 3, Q("210.856322 mm")))
sketch1.addConstraint(Sketcher.Constraint("DistanceX", -1, 1, 60, 3, Q("223.356322 mm")))
sketch1.addConstraint(Sketcher.Constraint("DistanceX", -1, 1, 61, 3, Q("235.856322 mm")))
sketch1.addConstraint(Sketcher.Constraint("DistanceX", -1, 1, 43, 2, Q("156.58959 mm")))
sketch1.addConstraint(Sketcher.Constraint("DistanceY", 15, 3, -1, 1, Q("51.835014 mm")))
sketch1.addConstraint(Sketcher.Constraint("DistanceY", 16, 3, -1, 1, Q("41.835014 mm")))
sketch1.addConstraint(Sketcher.Constraint("DistanceY", 17, 3, -1, 1, Q("31.835014 mm")))
sketch1.addConstraint(Sketcher.Constraint("DistanceX", -1, 1, 21, 3, Q("57.291145 mm")))
sketch1.addConstraint(Sketcher.Constraint("DistanceY", 21, 3, -1, 1, Q("13.257342 mm")))
sketch1.addConstraint(Sketcher.Constraint("DistanceX", -1, 1, 24, 3, Q("107.291145 mm")))
sketch1.addConstraint(Sketcher.Constraint("DistanceY", -1, 1, 47, 3, Q("56.742658 mm")))
sketch1.addConstraint(Sketcher.Constraint("DistanceY", -1, 1, 58, 3, Q("30.866494 mm")))
sketch1.addConstraint(Sketcher.Constraint("DistanceY", -1, 1, 59, 3, Q("50.866494 mm")))
sketch1.addConstraint(Sketcher.Constraint("DistanceY", -1, 1, 60, 3, Q("40.866494 mm")))
sketch1.addConstraint(Sketcher.Constraint("DistanceY", -1, 1, 43, 2, Q("44.175704 mm")))
sketch1.setExpression("Constraints[134]", "Params.sketch1_diameter")
sketch1.setExpression("Constraints[135]", "Params.sketch1_diameter2")
sketch1.setExpression("Constraints[136]", "Params.sketch1_diameter3")
sketch1.setExpression("Constraints[137]", "Params.sketch1_diameter4")
sketch1.setExpression("Constraints[138]", "Params.sketch1_radius")
pad1 = body.newObject("PartDesign::Pad", "Pad")
pad1.Profile = sketch1
pad1.setExpression("Length", "Params.pad1_length")

doc.recompute()
